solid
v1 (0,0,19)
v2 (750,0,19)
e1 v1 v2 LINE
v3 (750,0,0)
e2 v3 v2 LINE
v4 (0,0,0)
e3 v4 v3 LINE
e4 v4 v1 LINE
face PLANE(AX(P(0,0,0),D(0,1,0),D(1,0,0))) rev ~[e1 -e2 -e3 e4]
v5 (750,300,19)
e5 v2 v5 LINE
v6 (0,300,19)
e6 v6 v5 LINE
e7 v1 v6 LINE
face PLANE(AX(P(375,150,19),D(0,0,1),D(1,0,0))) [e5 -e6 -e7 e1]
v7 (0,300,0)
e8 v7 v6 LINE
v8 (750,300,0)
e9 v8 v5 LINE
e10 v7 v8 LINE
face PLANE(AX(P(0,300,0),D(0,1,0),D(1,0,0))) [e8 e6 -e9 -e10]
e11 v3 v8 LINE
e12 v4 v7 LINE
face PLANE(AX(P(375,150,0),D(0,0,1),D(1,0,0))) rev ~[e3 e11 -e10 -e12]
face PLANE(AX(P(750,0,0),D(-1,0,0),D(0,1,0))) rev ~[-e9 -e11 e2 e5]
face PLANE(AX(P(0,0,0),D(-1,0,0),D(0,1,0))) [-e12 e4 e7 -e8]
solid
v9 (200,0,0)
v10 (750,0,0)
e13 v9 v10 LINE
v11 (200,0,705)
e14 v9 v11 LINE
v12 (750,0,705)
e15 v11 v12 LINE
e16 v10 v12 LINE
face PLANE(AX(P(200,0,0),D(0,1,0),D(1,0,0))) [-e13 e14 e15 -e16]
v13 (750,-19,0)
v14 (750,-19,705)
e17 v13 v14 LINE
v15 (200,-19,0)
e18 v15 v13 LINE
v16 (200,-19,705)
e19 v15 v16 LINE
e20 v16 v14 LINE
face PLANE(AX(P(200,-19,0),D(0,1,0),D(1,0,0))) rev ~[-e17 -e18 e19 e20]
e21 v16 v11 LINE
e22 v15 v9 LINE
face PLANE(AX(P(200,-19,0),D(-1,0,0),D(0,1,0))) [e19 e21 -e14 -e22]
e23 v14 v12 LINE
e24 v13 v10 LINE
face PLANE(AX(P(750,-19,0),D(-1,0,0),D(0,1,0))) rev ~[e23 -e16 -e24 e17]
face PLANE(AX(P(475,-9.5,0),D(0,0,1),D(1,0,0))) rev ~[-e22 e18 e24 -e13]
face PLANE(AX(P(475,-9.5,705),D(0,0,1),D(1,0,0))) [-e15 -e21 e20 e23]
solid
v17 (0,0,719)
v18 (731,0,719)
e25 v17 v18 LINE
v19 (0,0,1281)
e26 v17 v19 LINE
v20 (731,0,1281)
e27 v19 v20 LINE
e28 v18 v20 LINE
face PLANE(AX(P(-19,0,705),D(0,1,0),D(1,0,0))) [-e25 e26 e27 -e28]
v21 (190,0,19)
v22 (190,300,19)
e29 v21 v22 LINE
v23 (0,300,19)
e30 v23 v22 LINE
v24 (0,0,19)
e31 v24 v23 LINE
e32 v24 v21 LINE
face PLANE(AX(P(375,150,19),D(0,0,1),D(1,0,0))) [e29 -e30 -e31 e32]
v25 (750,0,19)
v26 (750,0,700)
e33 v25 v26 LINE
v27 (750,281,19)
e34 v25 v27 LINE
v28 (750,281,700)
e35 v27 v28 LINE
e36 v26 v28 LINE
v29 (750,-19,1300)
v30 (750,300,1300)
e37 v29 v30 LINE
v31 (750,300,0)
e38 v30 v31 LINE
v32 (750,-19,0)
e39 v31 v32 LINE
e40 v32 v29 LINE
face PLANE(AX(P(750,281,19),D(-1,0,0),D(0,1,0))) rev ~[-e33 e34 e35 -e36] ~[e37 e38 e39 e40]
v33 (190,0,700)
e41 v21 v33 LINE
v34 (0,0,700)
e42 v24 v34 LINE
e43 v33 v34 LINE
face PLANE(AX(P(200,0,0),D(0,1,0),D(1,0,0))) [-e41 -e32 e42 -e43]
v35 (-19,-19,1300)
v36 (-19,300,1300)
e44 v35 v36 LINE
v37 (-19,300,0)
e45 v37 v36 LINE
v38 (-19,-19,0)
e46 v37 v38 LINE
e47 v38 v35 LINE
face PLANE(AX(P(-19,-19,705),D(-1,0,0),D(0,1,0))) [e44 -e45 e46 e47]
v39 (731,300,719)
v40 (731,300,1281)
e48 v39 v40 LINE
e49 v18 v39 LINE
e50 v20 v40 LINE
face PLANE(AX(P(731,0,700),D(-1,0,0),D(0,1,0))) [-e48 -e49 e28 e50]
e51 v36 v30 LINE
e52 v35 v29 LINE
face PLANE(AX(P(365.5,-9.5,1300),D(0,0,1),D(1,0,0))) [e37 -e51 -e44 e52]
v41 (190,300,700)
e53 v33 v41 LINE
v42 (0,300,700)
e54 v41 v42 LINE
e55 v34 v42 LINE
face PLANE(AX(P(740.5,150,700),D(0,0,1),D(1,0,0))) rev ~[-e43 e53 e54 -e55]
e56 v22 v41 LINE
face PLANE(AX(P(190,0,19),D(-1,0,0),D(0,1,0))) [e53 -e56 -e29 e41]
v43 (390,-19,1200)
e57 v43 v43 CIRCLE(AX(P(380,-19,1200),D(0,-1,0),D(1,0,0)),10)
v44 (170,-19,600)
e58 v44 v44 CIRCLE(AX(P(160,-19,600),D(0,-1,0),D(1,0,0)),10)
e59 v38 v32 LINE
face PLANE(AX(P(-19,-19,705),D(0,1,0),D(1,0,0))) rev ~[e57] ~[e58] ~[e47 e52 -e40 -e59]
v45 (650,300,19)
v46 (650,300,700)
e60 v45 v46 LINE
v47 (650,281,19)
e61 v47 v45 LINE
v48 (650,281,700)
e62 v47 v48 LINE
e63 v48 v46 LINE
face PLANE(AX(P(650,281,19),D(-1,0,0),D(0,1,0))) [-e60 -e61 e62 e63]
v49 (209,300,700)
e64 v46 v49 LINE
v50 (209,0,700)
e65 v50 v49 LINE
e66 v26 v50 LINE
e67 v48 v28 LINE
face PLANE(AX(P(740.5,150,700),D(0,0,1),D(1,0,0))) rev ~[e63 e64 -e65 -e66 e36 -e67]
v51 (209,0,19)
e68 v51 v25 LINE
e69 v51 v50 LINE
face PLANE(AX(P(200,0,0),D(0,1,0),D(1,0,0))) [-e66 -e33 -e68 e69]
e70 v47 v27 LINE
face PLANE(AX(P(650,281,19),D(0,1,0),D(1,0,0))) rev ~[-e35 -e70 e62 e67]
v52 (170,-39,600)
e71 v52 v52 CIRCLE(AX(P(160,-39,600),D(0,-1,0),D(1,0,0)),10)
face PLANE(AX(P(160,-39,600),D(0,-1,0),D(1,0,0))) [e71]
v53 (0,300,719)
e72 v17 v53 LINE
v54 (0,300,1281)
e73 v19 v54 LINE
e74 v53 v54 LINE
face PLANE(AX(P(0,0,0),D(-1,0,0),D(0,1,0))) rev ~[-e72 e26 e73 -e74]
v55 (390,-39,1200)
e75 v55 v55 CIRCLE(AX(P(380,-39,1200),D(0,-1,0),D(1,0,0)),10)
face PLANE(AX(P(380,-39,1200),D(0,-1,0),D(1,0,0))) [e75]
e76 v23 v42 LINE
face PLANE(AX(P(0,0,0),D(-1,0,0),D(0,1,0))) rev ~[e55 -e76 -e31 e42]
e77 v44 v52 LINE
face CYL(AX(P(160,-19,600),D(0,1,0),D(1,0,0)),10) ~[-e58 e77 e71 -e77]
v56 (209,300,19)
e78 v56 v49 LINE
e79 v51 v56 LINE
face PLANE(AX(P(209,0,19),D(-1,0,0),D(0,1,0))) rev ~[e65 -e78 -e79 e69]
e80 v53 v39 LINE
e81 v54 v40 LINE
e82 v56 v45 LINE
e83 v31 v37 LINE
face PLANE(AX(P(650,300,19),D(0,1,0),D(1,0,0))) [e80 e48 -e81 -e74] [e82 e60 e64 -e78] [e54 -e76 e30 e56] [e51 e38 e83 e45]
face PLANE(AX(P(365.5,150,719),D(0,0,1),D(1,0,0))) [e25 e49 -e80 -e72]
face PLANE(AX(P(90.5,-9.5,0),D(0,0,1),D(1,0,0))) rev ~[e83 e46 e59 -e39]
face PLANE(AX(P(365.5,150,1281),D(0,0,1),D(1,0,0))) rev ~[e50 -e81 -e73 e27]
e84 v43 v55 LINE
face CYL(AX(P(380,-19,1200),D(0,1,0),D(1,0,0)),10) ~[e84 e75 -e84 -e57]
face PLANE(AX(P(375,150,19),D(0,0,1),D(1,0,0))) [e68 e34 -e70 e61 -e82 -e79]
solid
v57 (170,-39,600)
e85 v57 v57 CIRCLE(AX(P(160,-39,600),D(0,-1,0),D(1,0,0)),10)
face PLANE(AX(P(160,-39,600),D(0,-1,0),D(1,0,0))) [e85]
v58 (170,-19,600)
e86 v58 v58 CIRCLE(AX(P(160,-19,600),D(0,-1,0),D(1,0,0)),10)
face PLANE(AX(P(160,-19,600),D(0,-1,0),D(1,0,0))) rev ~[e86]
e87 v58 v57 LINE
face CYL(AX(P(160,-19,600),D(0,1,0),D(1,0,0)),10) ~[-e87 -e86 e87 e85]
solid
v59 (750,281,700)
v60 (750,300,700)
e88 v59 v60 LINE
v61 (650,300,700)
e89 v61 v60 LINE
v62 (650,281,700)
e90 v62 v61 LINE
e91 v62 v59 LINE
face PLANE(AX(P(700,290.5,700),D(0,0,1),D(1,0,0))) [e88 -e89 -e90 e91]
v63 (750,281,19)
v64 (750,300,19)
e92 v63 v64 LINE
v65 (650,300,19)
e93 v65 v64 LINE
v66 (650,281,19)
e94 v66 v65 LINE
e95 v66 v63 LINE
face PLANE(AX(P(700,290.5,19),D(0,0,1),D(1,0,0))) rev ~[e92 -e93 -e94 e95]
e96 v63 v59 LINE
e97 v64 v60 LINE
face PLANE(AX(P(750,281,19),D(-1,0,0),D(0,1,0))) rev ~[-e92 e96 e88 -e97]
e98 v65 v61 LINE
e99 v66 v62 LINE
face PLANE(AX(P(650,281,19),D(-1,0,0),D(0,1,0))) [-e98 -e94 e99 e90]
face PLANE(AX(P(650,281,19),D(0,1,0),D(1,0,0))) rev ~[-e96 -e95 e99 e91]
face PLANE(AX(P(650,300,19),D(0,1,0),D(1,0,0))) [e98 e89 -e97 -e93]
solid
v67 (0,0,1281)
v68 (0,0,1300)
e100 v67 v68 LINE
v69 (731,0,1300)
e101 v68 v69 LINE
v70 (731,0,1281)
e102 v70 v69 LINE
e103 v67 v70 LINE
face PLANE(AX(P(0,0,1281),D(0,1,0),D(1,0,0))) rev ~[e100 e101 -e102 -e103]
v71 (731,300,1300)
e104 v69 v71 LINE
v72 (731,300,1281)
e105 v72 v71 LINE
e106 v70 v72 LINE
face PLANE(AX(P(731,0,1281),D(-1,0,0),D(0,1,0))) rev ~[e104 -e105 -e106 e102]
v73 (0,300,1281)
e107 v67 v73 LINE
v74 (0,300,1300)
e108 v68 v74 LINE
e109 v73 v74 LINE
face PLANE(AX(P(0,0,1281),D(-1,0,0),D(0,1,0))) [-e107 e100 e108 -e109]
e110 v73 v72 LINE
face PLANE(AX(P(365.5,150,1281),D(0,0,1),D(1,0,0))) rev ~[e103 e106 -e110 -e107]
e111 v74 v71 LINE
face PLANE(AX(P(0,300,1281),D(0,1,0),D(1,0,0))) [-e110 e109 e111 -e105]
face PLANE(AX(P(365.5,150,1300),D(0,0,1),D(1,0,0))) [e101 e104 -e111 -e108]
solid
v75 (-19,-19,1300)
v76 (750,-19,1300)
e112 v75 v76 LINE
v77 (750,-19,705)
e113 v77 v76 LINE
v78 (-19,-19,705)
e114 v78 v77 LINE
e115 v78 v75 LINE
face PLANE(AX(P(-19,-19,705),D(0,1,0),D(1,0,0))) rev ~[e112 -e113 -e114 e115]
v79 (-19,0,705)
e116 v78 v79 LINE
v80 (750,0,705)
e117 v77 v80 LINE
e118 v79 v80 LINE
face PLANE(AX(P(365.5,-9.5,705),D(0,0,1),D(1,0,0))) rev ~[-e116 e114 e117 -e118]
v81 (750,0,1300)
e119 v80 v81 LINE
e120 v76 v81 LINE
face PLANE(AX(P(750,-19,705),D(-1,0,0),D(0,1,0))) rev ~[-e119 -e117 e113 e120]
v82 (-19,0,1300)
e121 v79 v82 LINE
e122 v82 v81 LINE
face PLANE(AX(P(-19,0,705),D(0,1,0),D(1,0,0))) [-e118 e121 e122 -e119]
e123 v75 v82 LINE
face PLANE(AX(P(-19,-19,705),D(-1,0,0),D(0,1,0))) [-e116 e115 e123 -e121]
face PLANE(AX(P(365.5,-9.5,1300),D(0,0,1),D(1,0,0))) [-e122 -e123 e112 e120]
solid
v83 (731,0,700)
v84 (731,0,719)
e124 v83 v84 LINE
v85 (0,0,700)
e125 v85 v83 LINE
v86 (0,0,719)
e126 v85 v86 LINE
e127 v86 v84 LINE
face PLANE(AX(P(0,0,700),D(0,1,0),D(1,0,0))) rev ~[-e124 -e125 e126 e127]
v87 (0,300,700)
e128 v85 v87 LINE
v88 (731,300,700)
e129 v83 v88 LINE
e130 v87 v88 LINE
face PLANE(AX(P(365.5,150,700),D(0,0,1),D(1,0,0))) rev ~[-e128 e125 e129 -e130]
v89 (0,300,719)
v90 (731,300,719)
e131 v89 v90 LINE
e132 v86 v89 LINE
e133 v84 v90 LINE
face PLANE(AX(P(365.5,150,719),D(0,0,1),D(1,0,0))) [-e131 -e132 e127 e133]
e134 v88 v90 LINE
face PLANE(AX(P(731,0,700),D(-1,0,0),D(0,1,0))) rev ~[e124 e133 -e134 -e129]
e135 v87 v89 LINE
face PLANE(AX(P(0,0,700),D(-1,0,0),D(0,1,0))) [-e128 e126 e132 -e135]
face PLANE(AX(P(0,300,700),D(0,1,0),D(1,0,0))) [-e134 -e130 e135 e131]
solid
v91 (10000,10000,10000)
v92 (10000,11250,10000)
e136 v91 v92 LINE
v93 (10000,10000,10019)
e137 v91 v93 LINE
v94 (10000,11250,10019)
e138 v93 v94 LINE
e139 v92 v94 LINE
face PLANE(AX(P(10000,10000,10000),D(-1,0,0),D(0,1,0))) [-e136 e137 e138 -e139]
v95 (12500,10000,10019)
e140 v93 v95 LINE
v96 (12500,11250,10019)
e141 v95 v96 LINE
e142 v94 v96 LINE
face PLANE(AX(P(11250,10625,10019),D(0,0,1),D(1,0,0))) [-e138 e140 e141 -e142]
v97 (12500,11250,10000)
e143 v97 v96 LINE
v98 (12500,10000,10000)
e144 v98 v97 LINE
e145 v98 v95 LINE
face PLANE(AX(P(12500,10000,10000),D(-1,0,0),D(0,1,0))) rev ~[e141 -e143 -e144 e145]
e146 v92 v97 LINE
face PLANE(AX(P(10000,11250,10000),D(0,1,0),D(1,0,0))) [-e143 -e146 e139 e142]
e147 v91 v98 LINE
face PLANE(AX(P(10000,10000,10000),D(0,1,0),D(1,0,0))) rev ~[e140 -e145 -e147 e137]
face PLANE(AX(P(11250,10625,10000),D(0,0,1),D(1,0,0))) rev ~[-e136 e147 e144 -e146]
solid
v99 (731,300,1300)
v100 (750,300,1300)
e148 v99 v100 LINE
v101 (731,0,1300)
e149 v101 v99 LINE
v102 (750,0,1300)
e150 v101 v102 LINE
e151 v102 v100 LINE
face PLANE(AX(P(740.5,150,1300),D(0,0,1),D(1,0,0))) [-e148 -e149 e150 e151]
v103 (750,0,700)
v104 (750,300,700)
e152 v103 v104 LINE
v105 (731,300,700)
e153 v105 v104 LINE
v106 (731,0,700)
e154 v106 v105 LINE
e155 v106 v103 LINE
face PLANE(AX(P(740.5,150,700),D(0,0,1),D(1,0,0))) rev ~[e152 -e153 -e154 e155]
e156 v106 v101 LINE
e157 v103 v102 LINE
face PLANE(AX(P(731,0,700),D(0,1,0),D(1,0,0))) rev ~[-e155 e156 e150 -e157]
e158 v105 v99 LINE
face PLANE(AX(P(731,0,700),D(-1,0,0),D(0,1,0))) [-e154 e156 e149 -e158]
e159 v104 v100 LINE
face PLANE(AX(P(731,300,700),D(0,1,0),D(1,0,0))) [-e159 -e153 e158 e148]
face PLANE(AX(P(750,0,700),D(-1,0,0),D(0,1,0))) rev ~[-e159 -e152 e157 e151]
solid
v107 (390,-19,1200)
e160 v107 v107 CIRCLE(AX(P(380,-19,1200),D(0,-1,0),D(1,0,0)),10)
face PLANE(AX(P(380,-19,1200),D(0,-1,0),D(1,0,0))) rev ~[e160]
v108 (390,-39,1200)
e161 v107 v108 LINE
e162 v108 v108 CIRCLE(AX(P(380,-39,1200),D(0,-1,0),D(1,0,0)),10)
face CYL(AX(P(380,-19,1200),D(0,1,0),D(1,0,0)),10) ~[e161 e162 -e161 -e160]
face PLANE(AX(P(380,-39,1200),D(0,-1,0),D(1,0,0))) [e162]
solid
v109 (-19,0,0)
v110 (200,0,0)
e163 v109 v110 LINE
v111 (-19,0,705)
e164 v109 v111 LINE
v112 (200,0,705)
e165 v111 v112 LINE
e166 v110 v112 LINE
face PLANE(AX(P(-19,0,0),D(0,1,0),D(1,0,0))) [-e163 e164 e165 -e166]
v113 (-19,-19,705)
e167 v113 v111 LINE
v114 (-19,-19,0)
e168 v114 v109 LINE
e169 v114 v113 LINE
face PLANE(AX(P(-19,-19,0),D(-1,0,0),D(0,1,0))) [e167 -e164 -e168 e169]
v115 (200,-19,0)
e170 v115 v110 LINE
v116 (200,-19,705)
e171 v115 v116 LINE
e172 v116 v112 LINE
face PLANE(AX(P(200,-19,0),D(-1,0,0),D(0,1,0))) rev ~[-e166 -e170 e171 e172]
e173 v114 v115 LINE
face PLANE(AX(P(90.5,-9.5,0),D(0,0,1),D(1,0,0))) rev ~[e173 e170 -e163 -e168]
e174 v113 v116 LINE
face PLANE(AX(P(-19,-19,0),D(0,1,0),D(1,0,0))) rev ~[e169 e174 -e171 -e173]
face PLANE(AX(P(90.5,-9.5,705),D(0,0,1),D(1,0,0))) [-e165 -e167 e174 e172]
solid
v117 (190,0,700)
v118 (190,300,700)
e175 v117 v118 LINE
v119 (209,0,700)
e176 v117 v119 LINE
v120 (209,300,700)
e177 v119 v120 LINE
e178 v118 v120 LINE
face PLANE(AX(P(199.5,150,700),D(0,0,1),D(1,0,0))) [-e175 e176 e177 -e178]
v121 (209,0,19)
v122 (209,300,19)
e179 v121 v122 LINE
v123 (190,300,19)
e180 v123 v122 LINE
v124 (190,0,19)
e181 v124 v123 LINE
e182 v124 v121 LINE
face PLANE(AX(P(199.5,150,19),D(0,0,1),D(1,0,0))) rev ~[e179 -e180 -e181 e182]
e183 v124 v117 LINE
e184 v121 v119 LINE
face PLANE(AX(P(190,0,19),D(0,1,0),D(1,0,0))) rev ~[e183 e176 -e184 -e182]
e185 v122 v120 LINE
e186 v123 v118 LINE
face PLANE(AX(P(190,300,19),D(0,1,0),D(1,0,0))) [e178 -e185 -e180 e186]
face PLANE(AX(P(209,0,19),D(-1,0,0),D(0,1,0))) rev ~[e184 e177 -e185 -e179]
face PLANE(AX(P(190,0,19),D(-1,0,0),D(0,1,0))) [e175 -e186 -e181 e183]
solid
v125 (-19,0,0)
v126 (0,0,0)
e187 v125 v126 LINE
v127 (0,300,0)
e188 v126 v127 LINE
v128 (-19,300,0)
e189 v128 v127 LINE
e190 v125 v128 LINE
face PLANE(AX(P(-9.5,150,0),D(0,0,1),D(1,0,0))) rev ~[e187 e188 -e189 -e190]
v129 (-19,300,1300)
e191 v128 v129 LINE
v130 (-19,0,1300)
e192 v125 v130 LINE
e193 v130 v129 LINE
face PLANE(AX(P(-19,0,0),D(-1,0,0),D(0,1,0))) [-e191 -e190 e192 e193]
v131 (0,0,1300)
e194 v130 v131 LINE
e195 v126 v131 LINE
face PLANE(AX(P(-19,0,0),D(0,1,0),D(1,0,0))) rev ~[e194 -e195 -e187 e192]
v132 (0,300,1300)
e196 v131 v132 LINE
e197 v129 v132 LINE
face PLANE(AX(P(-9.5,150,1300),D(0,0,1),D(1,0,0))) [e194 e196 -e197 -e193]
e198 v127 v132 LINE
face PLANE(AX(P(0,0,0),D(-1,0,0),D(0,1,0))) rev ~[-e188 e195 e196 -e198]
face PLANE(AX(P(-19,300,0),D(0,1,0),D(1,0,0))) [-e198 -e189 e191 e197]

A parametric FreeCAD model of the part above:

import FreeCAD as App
import Part
import Sketcher

V = App.Vector
Q = App.Units.Quantity


def add_polygon(sketch, points):
    """Adds a closed chain of lines whose ends are joined by coincident constraints."""
    first, n = sketch.GeometryCount, len(points)
    for a, b in zip(points, points[1:] + points[:1]):
        sketch.addGeometry(Part.LineSegment(App.Vector(*a, 0), App.Vector(*b, 0)), False)
    for i in range(n):
        sketch.addConstraint(Sketcher.Constraint("Coincident", first + i, 2, first + (i + 1) % n, 1))

doc = App.newDocument("Part")
body = doc.addObject("PartDesign::Body", "Body")

sketch1 = body.newObject("Sketcher::SketchObject", "Sketch")
sketch1.AttachmentSupport = (doc.getObject("XY_Plane"), [""])
sketch1.MapMode = "FlatFace"
add_polygon(sketch1, [(0, 300), (0, 0), (750, 0), (750, 300)])
sketch1.addConstraint([
    Sketcher.Constraint("Vertical", 0),
    Sketcher.Constraint("Horizontal", 1),
    Sketcher.Constraint("Vertical", 2),
    Sketcher.Constraint("Horizontal", 3),
    Sketcher.Constraint("Coincident", 0, 2, -1, 1),
    Sketcher.Constraint("DistanceX", 1, 1, 1, 2, Q("750 mm")),
    Sketcher.Constraint("DistanceY", 0, 2, 0, 1, Q("300 mm")),
])
pad1 = body.newObject("PartDesign::Pad", "Pad")
pad1.Profile = sketch1
pad1.Length = 19
body2 = doc.addObject("PartDesign::Body", "Body001")

sketch2 = body2.newObject("Sketcher::SketchObject", "Sketch001")
sketch2.AttachmentSupport = (doc.getObject("XY_Plane001"), [""])
sketch2.MapMode = "FlatFace"
sketch2.AttachmentOffset = App.Placement(V(0, 0, 700), App.Rotation())
add_polygon(sketch2, [(0, 300), (0, 0), (731, 0), (731, 300)])
sketch2.addConstraint([
    Sketcher.Constraint("Vertical", 0),
    Sketcher.Constraint("Horizontal", 1),
    Sketcher.Constraint("Vertical", 2),
    Sketcher.Constraint("Horizontal", 3),
    Sketcher.Constraint("Coincident", 0, 2, -1, 1),
    Sketcher.Constraint("DistanceX", 1, 1, 1, 2, Q("731 mm")),
    Sketcher.Constraint("DistanceY", 0, 2, 0, 1, Q("300 mm")),
])
pad2 = body2.newObject("PartDesign::Pad", "Pad001")
pad2.Profile = sketch2
pad2.Length = 19
body3 = doc.addObject("PartDesign::Body", "Body002")

sketch3 = body3.newObject("Sketcher::SketchObject", "Sketch002")
sketch3.AttachmentSupport = (doc.getObject("XY_Plane002"), [""])
sketch3.MapMode = "FlatFace"
sketch3.AttachmentOffset = App.Placement(V(0, 0, 1281), App.Rotation())
add_polygon(sketch3, [(0, 300), (0, 0), (731, 0), (731, 300)])
sketch3.addConstraint([
    Sketcher.Constraint("Vertical", 0),
    Sketcher.Constraint("Horizontal", 1),
    Sketcher.Constraint("Vertical", 2),
    Sketcher.Constraint("Horizontal", 3),
    Sketcher.Constraint("Coincident", 0, 2, -1, 1),
    Sketcher.Constraint("DistanceX", 1, 1, 1, 2, Q("731 mm")),
    Sketcher.Constraint("DistanceY", 0, 2, 0, 1, Q("300 mm")),
])
pad3 = body3.newObject("PartDesign::Pad", "Pad002")
pad3.Profile = sketch3
pad3.Length = 19
body4 = doc.addObject("PartDesign::Body", "Body003")

sketch4 = body4.newObject("Sketcher::SketchObject", "Sketch003")
sketch4.AttachmentSupport = (doc.getObject("XY_Plane003"), [""])
sketch4.MapMode = "FlatFace"
add_polygon(sketch4, [(-19, 300), (-19, 0), (0, 0), (0, 300)])
sketch4.addConstraint([
    Sketcher.Constraint("Vertical", 0),
    Sketcher.Constraint("Horizontal", 1),
    Sketcher.Constraint("Vertical", 2),
    Sketcher.Constraint("Horizontal", 3),
    Sketcher.Constraint("Coincident", 1, 2, -1, 1),
    Sketcher.Constraint("DistanceX", 1, 1, 1, 2, Q("19 mm")),
    Sketcher.Constraint("DistanceY", 0, 2, 0, 1, Q("300 mm")),
])
pad4 = body4.newObject("PartDesign::Pad", "Pad003")
pad4.Profile = sketch4
pad4.Length = 1300
body5 = doc.addObject("PartDesign::Body", "Body004")

sketch5 = body5.newObject("Sketcher::SketchObject", "Sketch004")
sketch5.AttachmentSupport = (doc.getObject("XY_Plane004"), [""])
sketch5.MapMode = "FlatFace"
sketch5.AttachmentOffset = App.Placement(V(0, 0, 700), App.Rotation())
add_polygon(sketch5, [(731, 300), (731, 0), (750, 0), (750, 300)])
sketch5.addConstraint([
    Sketcher.Constraint("Vertical", 0),
    Sketcher.Constraint("Horizontal", 1),
    Sketcher.Constraint("Vertical", 2),
    Sketcher.Constraint("Horizontal", 3),
    Sketcher.Constraint("PointOnObject", 0, 2, -1),
    Sketcher.Constraint("DistanceX", 1, 1, 1, 2, Q("19 mm")),
    Sketcher.Constraint("DistanceY", 0, 2, 0, 1, Q("300 mm")),
    Sketcher.Constraint("DistanceX", -1, 1, 0, 2, Q("731 mm")),
])
pad5 = body5.newObject("PartDesign::Pad", "Pad004")
pad5.Profile = sketch5
pad5.Length = 600
body6 = doc.addObject("PartDesign::Body", "Body005")

sketch6 = body6.newObject("Sketcher::SketchObject", "Sketch005")
sketch6.AttachmentSupport = (doc.getObject("XY_Plane005"), [""])
sketch6.MapMode = "FlatFace"
add_polygon(sketch6, [(200, 0), (200, -19), (750, -19), (750, 0)])
sketch6.addConstraint([
    Sketcher.Constraint("Vertical", 0),
    Sketcher.Constraint("Horizontal", 1),
    Sketcher.Constraint("Vertical", 2),
    Sketcher.Constraint("Horizontal", 3),
    Sketcher.Constraint("PointOnObject", 2, 2, -1),
    Sketcher.Constraint("DistanceX", 1, 1, 1, 2, Q("550 mm")),
    Sketcher.Constraint("DistanceY", 0, 2, 0, 1, Q("19 mm")),
    Sketcher.Constraint("DistanceX", -1, 1, 0, 2, Q("200 mm")),
])
pad6 = body6.newObject("PartDesign::Pad", "Pad005")
pad6.Profile = sketch6
pad6.Length = 705
body7 = doc.addObject("PartDesign::Body", "Body006")

sketch7 = body7.newObject("Sketcher::SketchObject", "Sketch006")
sketch7.AttachmentSupport = (doc.getObject("XY_Plane006"), [""])
sketch7.MapMode = "FlatFace"
add_polygon(sketch7, [(-19, 0), (-19, -19), (200, -19), (200, 0)])
sketch7.addConstraint([
    Sketcher.Constraint("Vertical", 0),
    Sketcher.Constraint("Horizontal", 1),
    Sketcher.Constraint("Vertical", 2),
    Sketcher.Constraint("Horizontal", 3),
    Sketcher.Constraint("PointOnObject", 2, 2, -1),
    Sketcher.Constraint("DistanceX", 1, 1, 1, 2, Q("219 mm")),
    Sketcher.Constraint("DistanceY", 0, 2, 0, 1, Q("19 mm")),
    Sketcher.Constraint("DistanceX", 0, 2, -1, 1, Q("19 mm")),
])
pad7 = body7.newObject("PartDesign::Pad", "Pad006")
pad7.Profile = sketch7
pad7.Length = 705
body8 = doc.addObject("PartDesign::Body", "Body007")

sketch8 = body8.newObject("Sketcher::SketchObject", "Sketch007")
sketch8.AttachmentSupport = (doc.getObject("XY_Plane007"), [""])
sketch8.MapMode = "FlatFace"
sketch8.AttachmentOffset = App.Placement(V(0, 0, 19), App.Rotation())
add_polygon(sketch8, [(190, 300), (190, 0), (209, 0), (209, 300)])
sketch8.addConstraint([
    Sketcher.Constraint("Vertical", 0),
    Sketcher.Constraint("Horizontal", 1),
    Sketcher.Constraint("Vertical", 2),
    Sketcher.Constraint("Horizontal", 3),
    Sketcher.Constraint("PointOnObject", 0, 2, -1),
    Sketcher.Constraint("DistanceX", 1, 1, 1, 2, Q("19 mm")),
    Sketcher.Constraint("DistanceY", 0, 2, 0, 1, Q("300 mm")),
    Sketcher.Constraint("DistanceX", -1, 1, 0, 2, Q("190 mm")),
])
pad8 = body8.newObject("PartDesign::Pad", "Pad007")
pad8.Profile = sketch8
pad8.Length = 681
body9 = doc.addObject("PartDesign::Body", "Body008")

sketch9 = body9.newObject("Sketcher::SketchObject", "Sketch008")
sketch9.AttachmentSupport = (doc.getObject("XY_Plane008"), [""])
sketch9.MapMode = "FlatFace"
sketch9.AttachmentOffset = App.Placement(V(0, 0, 705), App.Rotation())
add_polygon(sketch9, [(-19, 0), (-19, -19), (750, -19), (750, 0)])
sketch9.addConstraint([
    Sketcher.Constraint("Vertical", 0),
    Sketcher.Constraint("Horizontal", 1),
    Sketcher.Constraint("Vertical", 2),
    Sketcher.Constraint("Horizontal", 3),
    Sketcher.Constraint("PointOnObject", 2, 2, -1),
    Sketcher.Constraint("DistanceX", 1, 1, 1, 2, Q("769 mm")),
    Sketcher.Constraint("DistanceY", 0, 2, 0, 1, Q("19 mm")),
    Sketcher.Constraint("DistanceX", 0, 2, -1, 1, Q("19 mm")),
])
pad9 = body9.newObject("PartDesign::Pad", "Pad008")
pad9.Profile = sketch9
pad9.Length = 595
body10 = doc.addObject("PartDesign::Body", "Body009")

sketch10 = body10.newObject("Sketcher::SketchObject", "Sketch009")
sketch10.AttachmentSupport = (doc.getObject("XY_Plane009"), [""])
sketch10.MapMode = "FlatFace"
sketch10.AttachmentOffset = App.Placement(V(0, 0, 19), App.Rotation())
add_polygon(sketch10, [(650, 300), (650, 281), (750, 281), (750, 300)])
sketch10.addConstraint([
    Sketcher.Constraint("Vertical", 0),
    Sketcher.Constraint("Horizontal", 1),
    Sketcher.Constraint("Vertical", 2),
    Sketcher.Constraint("Horizontal", 3),
    Sketcher.Constraint("DistanceX", 1, 1, 1, 2, Q("100 mm")),
    Sketcher.Constraint("DistanceY", 0, 2, 0, 1, Q("19 mm")),
    Sketcher.Constraint("DistanceX", -1, 1, 0, 2, Q("650 mm")),
    Sketcher.Constraint("DistanceY", -1, 1, 0, 2, Q("281 mm")),
])
pad10 = body10.newObject("PartDesign::Pad", "Pad009")
pad10.Profile = sketch10
pad10.Length = 681
body11 = doc.addObject("PartDesign::Body", "Body010")

sketch11 = body11.newObject("Sketcher::SketchObject", "Sketch010")
sketch11.AttachmentSupport = (doc.getObject("XY_Plane010"), [""])
sketch11.MapMode = "FlatFace"
sketch11.addGeometry(Part.Circle(V(0, 0, 0), V(0, 0, 1), 10), False)
sketch11.addConstraint([
    Sketcher.Constraint("Coincident", 0, 3, -1, 1),
    Sketcher.Constraint("Diameter", 0, Q("20 mm")),
])
pad11 = body11.newObject("PartDesign::Pad", "Pad010")
pad11.Profile = sketch11
pad11.Length = 20
body12 = doc.addObject("PartDesign::Body", "Body011")
doc.recompute()

body11.Placement = App.Placement(V(0, 0, 0), App.Rotation(V(1, 0, 0), 90))
boolean = body12.newObject("PartDesign::Boolean", "Boolean")
boolean.Type = "Fuse"
boolean.addObjects([body11])
body13 = doc.addObject("PartDesign::Body", "Body012")
doc.recompute()

body12.Placement = App.Placement(V(160, -19, 600), App.Rotation(V(0, 0, 1), 0))
boolean2 = body13.newObject("PartDesign::Boolean", "Boolean001")
boolean2.Type = "Fuse"
boolean2.addObjects([body12])
body14 = doc.addObject("PartDesign::Body", "Body013")

sketch12 = body14.newObject("Sketcher::SketchObject", "Sketch011")
sketch12.AttachmentSupport = (doc.getObject("XY_Plane013"), [""])
sketch12.MapMode = "FlatFace"
sketch12.addGeometry(Part.Circle(V(0, 0, 0), V(0, 0, 1), 10), False)
sketch12.addConstraint([
    Sketcher.Constraint("Coincident", 0, 3, -1, 1),
    Sketcher.Constraint("Diameter", 0, Q("20 mm")),
])
pad12 = body14.newObject("PartDesign::Pad", "Pad011")
pad12.Profile = sketch12
pad12.Length = 20
body15 = doc.addObject("PartDesign::Body", "Body014")
doc.recompute()

body14.Placement = App.Placement(V(0, 0, 0), App.Rotation(V(1, 0, 0), 90))
boolean3 = body15.newObject("PartDesign::Boolean", "Boolean002")
boolean3.Type = "Fuse"
boolean3.addObjects([body14])
body16 = doc.addObject("PartDesign::Body", "Body015")
doc.recompute()

body15.Placement = App.Placement(V(380, -19, 1200), App.Rotation(V(0, 0, 1), 0))
boolean4 = body16.newObject("PartDesign::Boolean", "Boolean003")
boolean4.Type = "Fuse"
boolean4.addObjects([body15])
body17 = doc.addObject("PartDesign::Body", "Body016")

sketch13 = body17.newObject("Sketcher::SketchObject", "Sketch012")
sketch13.AttachmentSupport = (doc.getObject("XY_Plane016"), [""])
sketch13.MapMode = "FlatFace"
sketch13.AttachmentOffset = App.Placement(V(0, 0, 700), App.Rotation())
add_polygon(sketch13, [(0, 300), (0, 0), (731, 0), (731, 300)])
sketch13.addConstraint([
    Sketcher.Constraint("Vertical", 0),
    Sketcher.Constraint("Horizontal", 1),
    Sketcher.Constraint("Vertical", 2),
    Sketcher.Constraint("Horizontal", 3),
    Sketcher.Constraint("Coincident", 0, 2, -1, 1),
    Sketcher.Constraint("DistanceX", 1, 1, 1, 2, Q("731 mm")),
    Sketcher.Constraint("DistanceY", 0, 2, 0, 1, Q("300 mm")),
])
pad13 = body17.newObject("PartDesign::Pad", "Pad012")
pad13.Profile = sketch13
pad13.Length = 19
body18 = doc.addObject("PartDesign::Body", "Body017")

sketch14 = body18.newObject("Sketcher::SketchObject", "Sketch013")
sketch14.AttachmentSupport = (doc.getObject("XY_Plane017"), [""])
sketch14.MapMode = "FlatFace"
sketch14.AttachmentOffset = App.Placement(V(0, 0, 1281), App.Rotation())
add_polygon(sketch14, [(0, 300), (0, 0), (731, 0), (731, 300)])
sketch14.addConstraint([
    Sketcher.Constraint("Vertical", 0),
    Sketcher.Constraint("Horizontal", 1),
    Sketcher.Constraint("Vertical", 2),
    Sketcher.Constraint("Horizontal", 3),
    Sketcher.Constraint("Coincident", 0, 2, -1, 1),
    Sketcher.Constraint("DistanceX", 1, 1, 1, 2, Q("731 mm")),
    Sketcher.Constraint("DistanceY", 0, 2, 0, 1, Q("300 mm")),
])
pad14 = body18.newObject("PartDesign::Pad", "Pad013")
pad14.Profile = sketch14
pad14.Length = 19
body19 = doc.addObject("PartDesign::Body", "Body018")

sketch15 = body19.newObject("Sketcher::SketchObject", "Sketch014")
sketch15.AttachmentSupport = (doc.getObject("XY_Plane018"), [""])
sketch15.MapMode = "FlatFace"
add_polygon(sketch15, [(-19, 300), (-19, 0), (0, 0), (0, 300)])
sketch15.addConstraint([
    Sketcher.Constraint("Vertical", 0),
    Sketcher.Constraint("Horizontal", 1),
    Sketcher.Constraint("Vertical", 2),
    Sketcher.Constraint("Horizontal", 3),
    Sketcher.Constraint("Coincident", 1, 2, -1, 1),
    Sketcher.Constraint("DistanceX", 1, 1, 1, 2, Q("19 mm")),
    Sketcher.Constraint("DistanceY", 0, 2, 0, 1, Q("300 mm")),
])
pad15 = body19.newObject("PartDesign::Pad", "Pad014")
pad15.Profile = sketch15
pad15.Length = 1300
body20 = doc.addObject("PartDesign::Body", "Body019")

sketch16 = body20.newObject("Sketcher::SketchObject", "Sketch015")
sketch16.AttachmentSupport = (doc.getObject("XY_Plane019"), [""])
sketch16.MapMode = "FlatFace"
sketch16.AttachmentOffset = App.Placement(V(0, 0, 700), App.Rotation())
add_polygon(sketch16, [(731, 300), (731, 0), (750, 0), (750, 300)])
sketch16.addConstraint([
    Sketcher.Constraint("Vertical", 0),
    Sketcher.Constraint("Horizontal", 1),
    Sketcher.Constraint("Vertical", 2),
    Sketcher.Constraint("Horizontal", 3),
    Sketcher.Constraint("PointOnObject", 0, 2, -1),
    Sketcher.Constraint("DistanceX", 1, 1, 1, 2, Q("19 mm")),
    Sketcher.Constraint("DistanceY", 0, 2, 0, 1, Q("300 mm")),
    Sketcher.Constraint("DistanceX", -1, 1, 0, 2, Q("731 mm")),
])
pad16 = body20.newObject("PartDesign::Pad", "Pad015")
pad16.Profile = sketch16
pad16.Length = 600
body21 = doc.addObject("PartDesign::Body", "Body020")

sketch17 = body21.newObject("Sketcher::SketchObject", "Sketch016")
sketch17.AttachmentSupport = (doc.getObject("XY_Plane020"), [""])
sketch17.MapMode = "FlatFace"
add_polygon(sketch17, [(200, 0), (200, -19), (750, -19), (750, 0)])
sketch17.addConstraint([
    Sketcher.Constraint("Vertical", 0),
    Sketcher.Constraint("Horizontal", 1),
    Sketcher.Constraint("Vertical", 2),
    Sketcher.Constraint("Horizontal", 3),
    Sketcher.Constraint("PointOnObject", 2, 2, -1),
    Sketcher.Constraint("DistanceX", 1, 1, 1, 2, Q("550 mm")),
    Sketcher.Constraint("DistanceY", 0, 2, 0, 1, Q("19 mm")),
    Sketcher.Constraint("DistanceX", -1, 1, 0, 2, Q("200 mm")),
])
pad17 = body21.newObject("PartDesign::Pad", "Pad016")
pad17.Profile = sketch17
pad17.Length = 705
body22 = doc.addObject("PartDesign::Body", "Body021")

sketch18 = body22.newObject("Sketcher::SketchObject", "Sketch017")
sketch18.AttachmentSupport = (doc.getObject("XY_Plane021"), [""])
sketch18.MapMode = "FlatFace"
add_polygon(sketch18, [(-19, 0), (-19, -19), (200, -19), (200, 0)])
sketch18.addConstraint([
    Sketcher.Constraint("Vertical", 0),
    Sketcher.Constraint("Horizontal", 1),
    Sketcher.Constraint("Vertical", 2),
    Sketcher.Constraint("Horizontal", 3),
    Sketcher.Constraint("PointOnObject", 2, 2, -1),
    Sketcher.Constraint("DistanceX", 1, 1, 1, 2, Q("219 mm")),
    Sketcher.Constraint("DistanceY", 0, 2, 0, 1, Q("19 mm")),
    Sketcher.Constraint("DistanceX", 0, 2, -1, 1, Q("19 mm")),
])
pad18 = body22.newObject("PartDesign::Pad", "Pad017")
pad18.Profile = sketch18
pad18.Length = 705
body23 = doc.addObject("PartDesign::Body", "Body022")

sketch19 = body23.newObject("Sketcher::SketchObject", "Sketch018")
sketch19.AttachmentSupport = (doc.getObject("XY_Plane022"), [""])
sketch19.MapMode = "FlatFace"
sketch19.AttachmentOffset = App.Placement(V(0, 0, 19), App.Rotation())
add_polygon(sketch19, [(190, 300), (190, 0), (209, 0), (209, 300)])
sketch19.addConstraint([
    Sketcher.Constraint("Vertical", 0),
    Sketcher.Constraint("Horizontal", 1),
    Sketcher.Constraint("Vertical", 2),
    Sketcher.Constraint("Horizontal", 3),
    Sketcher.Constraint("PointOnObject", 0, 2, -1),
    Sketcher.Constraint("DistanceX", 1, 1, 1, 2, Q("19 mm")),
    Sketcher.Constraint("DistanceY", 0, 2, 0, 1, Q("300 mm")),
    Sketcher.Constraint("DistanceX", -1, 1, 0, 2, Q("190 mm")),
])
pad19 = body23.newObject("PartDesign::Pad", "Pad018")
pad19.Profile = sketch19
pad19.Length = 681
body24 = doc.addObject("PartDesign::Body", "Body023")

sketch20 = body24.newObject("Sketcher::SketchObject", "Sketch019")
sketch20.AttachmentSupport = (doc.getObject("XY_Plane023"), [""])
sketch20.MapMode = "FlatFace"
sketch20.AttachmentOffset = App.Placement(V(0, 0, 705), App.Rotation())
add_polygon(sketch20, [(-19, 0), (-19, -19), (750, -19), (750, 0)])
sketch20.addConstraint([
    Sketcher.Constraint("Vertical", 0),
    Sketcher.Constraint("Horizontal", 1),
    Sketcher.Constraint("Vertical", 2),
    Sketcher.Constraint("Horizontal", 3),
    Sketcher.Constraint("PointOnObject", 2, 2, -1),
    Sketcher.Constraint("DistanceX", 1, 1, 1, 2, Q("769 mm")),
    Sketcher.Constraint("DistanceY", 0, 2, 0, 1, Q("19 mm")),
    Sketcher.Constraint("DistanceX", 0, 2, -1, 1, Q("19 mm")),
])
pad20 = body24.newObject("PartDesign::Pad", "Pad019")
pad20.Profile = sketch20
pad20.Length = 595
body25 = doc.addObject("PartDesign::Body", "Body024")

sketch21 = body25.newObject("Sketcher::SketchObject", "Sketch020")
sketch21.AttachmentSupport = (doc.getObject("XY_Plane024"), [""])
sketch21.MapMode = "FlatFace"
sketch21.AttachmentOffset = App.Placement(V(0, 0, 19), App.Rotation())
add_polygon(sketch21, [(650, 300), (650, 281), (750, 281), (750, 300)])
sketch21.addConstraint([
    Sketcher.Constraint("Vertical", 0),
    Sketcher.Constraint("Horizontal", 1),
    Sketcher.Constraint("Vertical", 2),
    Sketcher.Constraint("Horizontal", 3),
    Sketcher.Constraint("DistanceX", 1, 1, 1, 2, Q("100 mm")),
    Sketcher.Constraint("DistanceY", 0, 2, 0, 1, Q("19 mm")),
    Sketcher.Constraint("DistanceX", -1, 1, 0, 2, Q("650 mm")),
    Sketcher.Constraint("DistanceY", -1, 1, 0, 2, Q("281 mm")),
])
pad21 = body25.newObject("PartDesign::Pad", "Pad020")
pad21.Profile = sketch21
pad21.Length = 681
body26 = doc.addObject("PartDesign::Body", "Body025")

sketch22 = body26.newObject("Sketcher::SketchObject", "Sketch021")
sketch22.AttachmentSupport = (doc.getObject("XY_Plane025"), [""])
sketch22.MapMode = "FlatFace"
sketch22.addGeometry(Part.Circle(V(0, 0, 0), V(0, 0, 1), 10), False)
sketch22.addConstraint([
    Sketcher.Constraint("Coincident", 0, 3, -1, 1),
    Sketcher.Constraint("Diameter", 0, Q("20 mm")),
])
pad22 = body26.newObject("PartDesign::Pad", "Pad021")
pad22.Profile = sketch22
pad22.Length = 20
body27 = doc.addObject("PartDesign::Body", "Body026")
doc.recompute()

body26.Placement = App.Placement(V(0, 0, 0), App.Rotation(V(1, 0, 0), 90))
boolean5 = body27.newObject("PartDesign::Boolean", "Boolean004")
boolean5.Type = "Fuse"
boolean5.addObjects([body26])
body28 = doc.addObject("PartDesign::Body", "Body027")
doc.recompute()

body27.Placement = App.Placement(V(160, -19, 600), App.Rotation(V(0, 0, 1), 0))
boolean6 = body28.newObject("PartDesign::Boolean", "Boolean005")
boolean6.Type = "Fuse"
boolean6.addObjects([body27])
body29 = doc.addObject("PartDesign::Body", "Body028")

sketch23 = body29.newObject("Sketcher::SketchObject", "Sketch022")
sketch23.AttachmentSupport = (doc.getObject("XY_Plane028"), [""])
sketch23.MapMode = "FlatFace"
sketch23.addGeometry(Part.Circle(V(0, 0, 0), V(0, 0, 1), 10), False)
sketch23.addConstraint([
    Sketcher.Constraint("Coincident", 0, 3, -1, 1),
    Sketcher.Constraint("Diameter", 0, Q("20 mm")),
])
pad23 = body29.newObject("PartDesign::Pad", "Pad022")
pad23.Profile = sketch23
pad23.Length = 20
body30 = doc.addObject("PartDesign::Body", "Body029")
doc.recompute()

body29.Placement = App.Placement(V(0, 0, 0), App.Rotation(V(1, 0, 0), 90))
boolean7 = body30.newObject("PartDesign::Boolean", "Boolean006")
boolean7.Type = "Fuse"
boolean7.addObjects([body29])
body31 = doc.addObject("PartDesign::Body", "Body030")
doc.recompute()

body30.Placement = App.Placement(V(380, -19, 1200), App.Rotation(V(0, 0, 1), 0))
boolean8 = body31.newObject("PartDesign::Boolean", "Boolean007")
boolean8.Type = "Fuse"
boolean8.addObjects([body30])
body32 = doc.addObject("PartDesign::Body", "Body031")
body32.AllowCompound = True

sketch24 = body32.newObject("Sketcher::SketchObject", "Sketch023")
sketch24.AttachmentSupport = (doc.getObject("XY_Plane031"), [""])
sketch24.MapMode = "FlatFace"
add_polygon(sketch24, [(0, 300), (0, 0), (750, 0), (750, 300)])
sketch24.addConstraint([
    Sketcher.Constraint("Vertical", 0),
    Sketcher.Constraint("Horizontal", 1),
    Sketcher.Constraint("Vertical", 2),
    Sketcher.Constraint("Horizontal", 3),
    Sketcher.Constraint("Coincident", 0, 2, -1, 1),
    Sketcher.Constraint("DistanceX", 1, 1, 1, 2, Q("750 mm")),
    Sketcher.Constraint("DistanceY", 0, 2, 0, 1, Q("300 mm")),
])
pad24 = body32.newObject("PartDesign::Pad", "Pad023")
pad24.Profile = sketch24
pad24.Length = 19
doc.recompute()

boolean9 = body32.newObject("PartDesign::Boolean", "Boolean008")
boolean9.Type = "Fuse"
boolean9.addObjects([body17])
doc.recompute()

boolean10 = body32.newObject("PartDesign::Boolean", "Boolean009")
boolean10.Type = "Fuse"
boolean10.addObjects([body18])
doc.recompute()

boolean11 = body32.newObject("PartDesign::Boolean", "Boolean010")
boolean11.Type = "Fuse"
boolean11.addObjects([body19])
doc.recompute()

boolean12 = body32.newObject("PartDesign::Boolean", "Boolean011")
boolean12.Type = "Fuse"
boolean12.addObjects([body20])
doc.recompute()

boolean13 = body32.newObject("PartDesign::Boolean", "Boolean012")
boolean13.Type = "Fuse"
boolean13.addObjects([body21])
doc.recompute()

boolean14 = body32.newObject("PartDesign::Boolean", "Boolean013")
boolean14.Type = "Fuse"
boolean14.addObjects([body22])
doc.recompute()

boolean15 = body32.newObject("PartDesign::Boolean", "Boolean014")
boolean15.Type = "Fuse"
boolean15.addObjects([body23])
doc.recompute()

boolean16 = body32.newObject("PartDesign::Boolean", "Boolean015")
boolean16.Type = "Fuse"
boolean16.addObjects([body24])
doc.recompute()

boolean17 = body32.newObject("PartDesign::Boolean", "Boolean016")
boolean17.Type = "Fuse"
boolean17.addObjects([body25])
doc.recompute()

boolean18 = body32.newObject("PartDesign::Boolean", "Boolean017")
boolean18.Type = "Fuse"
boolean18.addObjects([body28])
doc.recompute()

boolean19 = body32.newObject("PartDesign::Boolean", "Boolean018")
boolean19.Type = "Fuse"
boolean19.addObjects([body31])
body33 = doc.addObject("PartDesign::Body", "Body032")

sketch25 = body33.newObject("Sketcher::SketchObject", "Sketch024")
sketch25.AttachmentSupport = (doc.getObject("XY_Plane032"), [""])
sketch25.MapMode = "FlatFace"
sketch25.AttachmentOffset = App.Placement(V(0, 0, 10000), App.Rotation())
add_polygon(sketch25, [(10000, 11250), (10000, 10000), (12500, 10000), (12500, 11250)])
sketch25.addConstraint([
    Sketcher.Constraint("Vertical", 0),
    Sketcher.Constraint("Horizontal", 1),
    Sketcher.Constraint("Vertical", 2),
    Sketcher.Constraint("Horizontal", 3),
    Sketcher.Constraint("DistanceX", 1, 1, 1, 2, Q("2500 mm")),
    Sketcher.Constraint("DistanceY", 0, 2, 0, 1, Q("1250 mm")),
    Sketcher.Constraint("DistanceX", -1, 1, 0, 2, Q("10000 mm")),
    Sketcher.Constraint("DistanceY", -1, 1, 0, 2, Q("10000 mm")),
])
pad25 = body33.newObject("PartDesign::Pad", "Pad024")
pad25.Profile = sketch25
pad25.Length = 19

doc.recompute()
